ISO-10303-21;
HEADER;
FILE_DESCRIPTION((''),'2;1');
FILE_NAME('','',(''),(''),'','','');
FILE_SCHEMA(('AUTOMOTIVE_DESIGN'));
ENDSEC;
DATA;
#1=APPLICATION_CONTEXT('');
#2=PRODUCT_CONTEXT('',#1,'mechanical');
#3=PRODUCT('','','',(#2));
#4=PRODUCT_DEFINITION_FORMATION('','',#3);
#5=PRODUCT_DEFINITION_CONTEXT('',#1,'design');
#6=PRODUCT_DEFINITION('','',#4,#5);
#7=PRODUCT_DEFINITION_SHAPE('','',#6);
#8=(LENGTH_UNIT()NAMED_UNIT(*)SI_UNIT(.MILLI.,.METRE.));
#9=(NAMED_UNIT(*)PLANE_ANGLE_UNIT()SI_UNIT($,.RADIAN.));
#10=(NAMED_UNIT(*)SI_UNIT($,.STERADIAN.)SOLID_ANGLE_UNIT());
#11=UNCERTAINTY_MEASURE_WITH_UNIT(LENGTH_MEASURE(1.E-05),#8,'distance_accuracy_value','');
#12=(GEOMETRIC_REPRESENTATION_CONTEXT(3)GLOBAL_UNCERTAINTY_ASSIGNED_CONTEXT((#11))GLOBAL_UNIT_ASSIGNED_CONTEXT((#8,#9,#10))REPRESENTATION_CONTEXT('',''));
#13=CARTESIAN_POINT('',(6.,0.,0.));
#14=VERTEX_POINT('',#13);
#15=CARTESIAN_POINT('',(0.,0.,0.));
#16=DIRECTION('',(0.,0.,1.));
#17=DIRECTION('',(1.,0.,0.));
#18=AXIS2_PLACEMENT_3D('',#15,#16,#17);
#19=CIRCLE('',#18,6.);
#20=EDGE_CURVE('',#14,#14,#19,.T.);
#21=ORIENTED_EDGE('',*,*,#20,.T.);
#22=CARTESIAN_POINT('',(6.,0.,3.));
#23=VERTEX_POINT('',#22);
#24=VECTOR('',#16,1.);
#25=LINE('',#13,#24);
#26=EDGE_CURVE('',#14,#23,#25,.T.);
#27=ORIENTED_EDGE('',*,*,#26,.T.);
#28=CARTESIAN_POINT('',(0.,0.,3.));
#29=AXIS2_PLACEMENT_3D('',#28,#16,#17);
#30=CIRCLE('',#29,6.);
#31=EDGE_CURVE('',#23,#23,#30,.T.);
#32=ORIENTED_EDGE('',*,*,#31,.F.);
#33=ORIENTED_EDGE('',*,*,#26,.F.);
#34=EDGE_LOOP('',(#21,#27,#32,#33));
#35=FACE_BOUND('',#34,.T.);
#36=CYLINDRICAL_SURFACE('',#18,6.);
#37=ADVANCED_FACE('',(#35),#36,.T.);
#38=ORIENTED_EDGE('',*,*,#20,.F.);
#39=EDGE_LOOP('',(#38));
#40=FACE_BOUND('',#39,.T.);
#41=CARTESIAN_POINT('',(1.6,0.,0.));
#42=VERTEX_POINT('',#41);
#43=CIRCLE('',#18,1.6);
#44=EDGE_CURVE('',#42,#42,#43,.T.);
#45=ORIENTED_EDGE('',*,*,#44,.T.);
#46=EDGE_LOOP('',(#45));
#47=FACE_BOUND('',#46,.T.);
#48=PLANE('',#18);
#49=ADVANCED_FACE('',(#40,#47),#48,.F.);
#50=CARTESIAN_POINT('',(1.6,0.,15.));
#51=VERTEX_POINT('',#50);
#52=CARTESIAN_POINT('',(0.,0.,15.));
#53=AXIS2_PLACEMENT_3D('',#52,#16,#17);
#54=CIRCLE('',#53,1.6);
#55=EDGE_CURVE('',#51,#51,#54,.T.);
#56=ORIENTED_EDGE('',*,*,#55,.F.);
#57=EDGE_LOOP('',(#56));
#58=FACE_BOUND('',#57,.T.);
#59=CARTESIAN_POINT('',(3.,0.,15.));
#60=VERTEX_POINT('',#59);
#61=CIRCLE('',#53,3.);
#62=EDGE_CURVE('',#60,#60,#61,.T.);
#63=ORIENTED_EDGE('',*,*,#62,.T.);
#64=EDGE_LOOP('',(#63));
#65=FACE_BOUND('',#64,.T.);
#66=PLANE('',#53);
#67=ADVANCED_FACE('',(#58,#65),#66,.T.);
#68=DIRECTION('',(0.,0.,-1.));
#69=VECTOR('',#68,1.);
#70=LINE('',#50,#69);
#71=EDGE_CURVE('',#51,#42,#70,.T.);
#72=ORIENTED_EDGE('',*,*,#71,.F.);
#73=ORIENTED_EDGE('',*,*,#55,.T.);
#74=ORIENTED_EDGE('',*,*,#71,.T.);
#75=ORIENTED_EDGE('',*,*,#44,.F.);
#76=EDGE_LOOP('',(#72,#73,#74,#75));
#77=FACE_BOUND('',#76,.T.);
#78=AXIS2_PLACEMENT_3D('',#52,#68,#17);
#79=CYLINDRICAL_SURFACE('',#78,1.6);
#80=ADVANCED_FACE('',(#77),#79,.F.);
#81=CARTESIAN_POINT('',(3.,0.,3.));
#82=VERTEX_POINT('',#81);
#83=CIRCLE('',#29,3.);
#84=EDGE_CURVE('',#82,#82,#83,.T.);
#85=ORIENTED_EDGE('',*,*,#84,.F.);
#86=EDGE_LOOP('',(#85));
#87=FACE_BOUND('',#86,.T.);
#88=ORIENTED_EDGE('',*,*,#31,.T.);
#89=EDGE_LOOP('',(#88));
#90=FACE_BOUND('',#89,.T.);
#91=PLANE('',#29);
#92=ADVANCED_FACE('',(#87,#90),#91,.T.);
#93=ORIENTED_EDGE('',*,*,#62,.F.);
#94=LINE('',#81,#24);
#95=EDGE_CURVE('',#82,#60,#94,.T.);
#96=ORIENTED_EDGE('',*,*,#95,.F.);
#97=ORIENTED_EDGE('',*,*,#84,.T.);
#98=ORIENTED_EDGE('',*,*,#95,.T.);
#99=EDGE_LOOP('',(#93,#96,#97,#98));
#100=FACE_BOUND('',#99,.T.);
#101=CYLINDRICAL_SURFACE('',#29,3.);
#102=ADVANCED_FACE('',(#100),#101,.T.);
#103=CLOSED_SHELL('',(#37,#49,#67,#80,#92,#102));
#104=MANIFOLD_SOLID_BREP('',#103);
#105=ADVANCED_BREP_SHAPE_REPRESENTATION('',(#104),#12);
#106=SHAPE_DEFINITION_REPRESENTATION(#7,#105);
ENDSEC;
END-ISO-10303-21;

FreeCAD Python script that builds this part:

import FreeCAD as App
import Part
import Sketcher

V = App.Vector
Q = App.Units.Quantity


def add_polygon(sketch, points):
    """Adds a closed chain of lines whose ends are joined by coincident constraints."""
    first, n = sketch.GeometryCount, len(points)
    for a, b in zip(points, points[1:] + points[:1]):
        sketch.addGeometry(Part.LineSegment(App.Vector(*a, 0), App.Vector(*b, 0)), False)
    for i in range(n):
        sketch.addConstraint(Sketcher.Constraint("Coincident", first + i, 2, first + (i + 1) % n, 1))

doc = App.newDocument("Part")
body = doc.addObject("PartDesign::Body", "Body")

sketch1 = body.newObject("Sketcher::SketchObject", "Sketch")
sketch1.AttachmentSupport = (doc.getObject("XZ_Plane"), [""])
sketch1.MapMode = "FlatFace"
add_polygon(sketch1, [(1.6, 0), (1.6, 15), (3, 15), (3, 3), (6, 3), (6, 0)])
sketch1.addConstraint(Sketcher.Constraint("Vertical", 0))
sketch1.addConstraint(Sketcher.Constraint("Horizontal", 1))
sketch1.addConstraint(Sketcher.Constraint("Vertical", 2))
sketch1.addConstraint(Sketcher.Constraint("Horizontal", 3))
sketch1.addConstraint(Sketcher.Constraint("Vertical", 4))
sketch1.addConstraint(Sketcher.Constraint("Horizontal", 5))
sketch1.addConstraint(Sketcher.Constraint("PointOnObject", 4, 2, -1))
sketch1.addConstraint(Sketcher.Constraint("Equal", 3, 4))
sketch1.addConstraint(Sketcher.Constraint("DistanceX", 3, 1, 3, 2, Q("3 mm")))
sketch1.addConstraint(Sketcher.Constraint("DistanceY", 2, 2, 2, 1, Q("12 mm")))
sketch1.addConstraint(Sketcher.Constraint("DistanceX", -1, 1, 1, 2, Q("3 mm")))
sketch1.addConstraint(Sketcher.Constraint("DistanceX", 1, 1, 1, 2, Q("1.4 mm")))
revolution = body.newObject("PartDesign::Revolution", "Revolution")
revolution.Profile = sketch1
revolution.ReferenceAxis = (sketch1, ["V_Axis"])
revolution.Angle = 360

doc.recompute()
